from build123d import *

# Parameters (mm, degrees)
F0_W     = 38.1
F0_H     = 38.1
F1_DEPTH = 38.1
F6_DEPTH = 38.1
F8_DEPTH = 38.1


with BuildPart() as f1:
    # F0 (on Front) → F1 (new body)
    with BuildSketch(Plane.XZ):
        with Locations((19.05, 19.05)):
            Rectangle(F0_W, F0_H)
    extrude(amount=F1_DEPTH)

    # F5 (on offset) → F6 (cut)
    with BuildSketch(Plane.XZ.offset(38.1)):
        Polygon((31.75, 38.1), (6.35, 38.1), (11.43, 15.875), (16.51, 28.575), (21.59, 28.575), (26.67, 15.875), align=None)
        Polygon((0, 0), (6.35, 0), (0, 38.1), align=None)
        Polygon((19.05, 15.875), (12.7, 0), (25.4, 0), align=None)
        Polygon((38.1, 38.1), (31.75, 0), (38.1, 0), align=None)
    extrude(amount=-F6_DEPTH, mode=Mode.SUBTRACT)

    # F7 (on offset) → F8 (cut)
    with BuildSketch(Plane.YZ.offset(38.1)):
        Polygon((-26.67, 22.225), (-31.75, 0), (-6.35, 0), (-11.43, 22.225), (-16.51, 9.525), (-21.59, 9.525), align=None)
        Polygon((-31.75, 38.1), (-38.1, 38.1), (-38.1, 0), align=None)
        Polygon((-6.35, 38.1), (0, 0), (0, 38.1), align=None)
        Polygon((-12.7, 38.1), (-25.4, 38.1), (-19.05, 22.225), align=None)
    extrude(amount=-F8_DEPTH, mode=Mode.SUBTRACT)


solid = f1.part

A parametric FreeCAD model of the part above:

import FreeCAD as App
import Part
import Sketcher

V = App.Vector
Q = App.Units.Quantity


def add_polygon(sketch, points):
    """Adds a closed chain of lines whose ends are joined by coincident constraints."""
    first, n = sketch.GeometryCount, len(points)
    for a, b in zip(points, points[1:] + points[:1]):
        sketch.addGeometry(Part.LineSegment(App.Vector(*a, 0), App.Vector(*b, 0)), False)
    for i in range(n):
        sketch.addConstraint(Sketcher.Constraint("Coincident", first + i, 2, first + (i + 1) % n, 1))

doc = App.newDocument("Part")
body = doc.addObject("PartDesign::Body", "Body")

# Sketch on XZ plane
sketch1 = body.newObject("Sketcher::SketchObject", "Sketch")
sketch1.AttachmentSupport = (doc.getObject("XZ_Plane"), [""])
sketch1.MapMode = "FlatFace"
add_polygon(sketch1, [(0, 38.1), (0, 0), (38.1, 0), (38.1, 38.1)])  # lines 0-3
sketch1.addConstraint([
    Sketcher.Constraint("Vertical", 0),
    Sketcher.Constraint("Horizontal", 1),
    Sketcher.Constraint("Vertical", 2),
    Sketcher.Constraint("Horizontal", 3),
    Sketcher.Constraint("Coincident", 0, 2, -1, 1),
    Sketcher.Constraint("Equal", 3, 0),
    Sketcher.Constraint("DistanceX", 1, 1, 1, 2, Q("1.5 in")),
])
pad1 = body.newObject("PartDesign::Pad", "Pad")
pad1.Profile = sketch1
pad1.Length = Q("1.5 in")

# Sketch on XZ plane
sketch2 = body.newObject("Sketcher::SketchObject", "Sketch001")
sketch2.AttachmentSupport = (doc.getObject("XZ_Plane"), [""])
sketch2.MapMode = "FlatFace"
sketch2.AttachmentOffset = App.Placement(V(0, 0, 1.5 * 25.4), App.Rotation())
add_polygon(sketch2, [(31.75, 38.1), (6.35, 38.1), (11.43, 15.875), (16.51, 28.575), (21.59, 28.575), (26.67, 15.875)])  # lines 0-5
add_polygon(sketch2, [(0, 0), (6.35, 0), (0, 38.1)])  # lines 6-8
add_polygon(sketch2, [(19.05, 15.875), (12.7, 0), (25.4, 0)])  # lines 9-11
add_polygon(sketch2, [(38.1, 38.1), (31.75, 0), (38.1, 0)])  # lines 12-14
sketch2.addConstraint([
    Sketcher.Constraint("Horizontal", 0),
    Sketcher.Constraint("Horizontal", 3),
    Sketcher.Constraint("Horizontal", 6),
    Sketcher.Constraint("Vertical", 8),
    Sketcher.Constraint("Horizontal", 10),
    Sketcher.Constraint("Horizontal", 13),
    Sketcher.Constraint("Vertical", 14),
    Sketcher.Constraint("Coincident", 8, 2, -1, 1),
    Sketcher.Constraint("PointOnObject", 9, 2, -1),
    Sketcher.Constraint("PointOnObject", 12, 2, -1),
    Sketcher.Constraint("Parallel", 2, 9),
    Sketcher.Constraint("Parallel", 4, 11),
    Sketcher.Constraint("Horizontal", 1, 2, 4, 2),
    Sketcher.Constraint("Horizontal", 5, 2, 7, 2),
    Sketcher.Constraint("Horizontal", 4, 2, 11, 2),
    Sketcher.Constraint("Horizontal", 7, 2, 14, 2),
    Sketcher.Constraint("Vertical", 0, 2, 6, 2),
    Sketcher.Constraint("Vertical", 5, 2, 12, 2),
    Sketcher.Constraint("Equal", 6, 13),
    Sketcher.Constraint("Equal", 2, 4),
    Sketcher.Constraint("Equal", 1, 5),
    Sketcher.Constraint("DistanceX", 0, 2, 0, 1, Q("1 in")),
    Sketcher.Constraint("DistanceX", 3, 1, 3, 2, Q("0.2 in")),
    Sketcher.Constraint("DistanceX", 10, 1, 10, 2, Q("0.5 in")),
    Sketcher.Constraint("DistanceY", 8, 2, 8, 1, Q("1.5 in")),
    Sketcher.Constraint("DistanceX", -1, 1, 10, 2, Q("1 in")),
    Sketcher.Constraint("DistanceX", 9, 2, 13, 2, Q("1 in")),
    Sketcher.Constraint("DistanceX", 0, 2, 1, 2, Q("0.2 in")),
    Sketcher.Constraint("DistanceY", 1, 2, 2, 2, Q("0.5 in")),
])
pocket1 = body.newObject("PartDesign::Pocket", "Pocket")
pocket1.Profile = sketch2
pocket1.Length = Q("1.5 in")

# Sketch on YZ plane
sketch3 = body.newObject("Sketcher::SketchObject", "Sketch002")
sketch3.AttachmentSupport = (doc.getObject("YZ_Plane"), [""])
sketch3.MapMode = "FlatFace"
sketch3.AttachmentOffset = App.Placement(V(0, 0, 1.5 * 25.4), App.Rotation())
add_polygon(sketch3, [(-26.67, 22.225), (-31.75, 0), (-6.35, 0), (-11.43, 22.225), (-16.51, 9.525), (-21.59, 9.525)])  # lines 0-5
add_polygon(sketch3, [(-31.75, 38.1), (-38.1, 38.1), (-38.1, 0)])  # lines 6-8
add_polygon(sketch3, [(-6.35, 38.1), (0, 0), (0, 38.1)])  # lines 9-11
add_polygon(sketch3, [(-12.7, 38.1), (-25.4, 38.1), (-19.05, 22.225)])  # lines 12-14
sketch3.addConstraint([
    Sketcher.Constraint("Horizontal", 1),
    Sketcher.Constraint("Horizontal", 4),
    Sketcher.Constraint("Horizontal", 6),
    Sketcher.Constraint("Vertical", 7),
    Sketcher.Constraint("Vertical", 10),
    Sketcher.Constraint("Horizontal", 11),
    Sketcher.Constraint("Horizontal", 12),
    Sketcher.Constraint("Coincident", 9, 2, -1, 1),
    Sketcher.Constraint("PointOnObject", 0, 2, -1),
    Sketcher.Constraint("PointOnObject", 7, 2, -1),
    Sketcher.Constraint("Parallel", 5, 13),
    Sketcher.Constraint("Parallel", 3, 14),
    Sketcher.Constraint("Horizontal", 2, 2, 5, 2),
    Sketcher.Constraint("Horizontal", 8, 2, 10, 2),
    Sketcher.Constraint("Horizontal", 11, 2, 12, 2),
    Sketcher.Constraint("Horizontal", 5, 2, 13, 2),
    Sketcher.Constraint("Vertical", 0, 2, 8, 2),
    Sketcher.Constraint("Vertical", 1, 2, 11, 2),
    Sketcher.Constraint("Equal", 6, 11),
    Sketcher.Constraint("Equal", 0, 2),
    Sketcher.Constraint("Equal", 3, 5),
    Sketcher.Constraint("DistanceX", 1, 1, 1, 2, Q("1 in")),
    Sketcher.Constraint("DistanceX", 4, 2, 4, 1, Q("0.2 in")),
    Sketcher.Constraint("DistanceX", 12, 2, 12, 1, Q("0.5 in")),
    Sketcher.Constraint("DistanceY", 7, 2, 7, 1, Q("1.5 in")),
    Sketcher.Constraint("DistanceX", 12, 2, -1, 1, Q("1 in")),
    Sketcher.Constraint("DistanceX", 6, 2, 6, 1, Q("0.25 in")),
    Sketcher.Constraint("DistanceX", 2, 2, 1, 2, Q("0.2 in")),
    Sketcher.Constraint("DistanceY", 3, 2, 2, 2, Q("0.5 in")),
])
pocket2 = body.newObject("PartDesign::Pocket", "Pocket001")
pocket2.Profile = sketch3
pocket2.Length = Q("1.5 in")

doc.recompute()
